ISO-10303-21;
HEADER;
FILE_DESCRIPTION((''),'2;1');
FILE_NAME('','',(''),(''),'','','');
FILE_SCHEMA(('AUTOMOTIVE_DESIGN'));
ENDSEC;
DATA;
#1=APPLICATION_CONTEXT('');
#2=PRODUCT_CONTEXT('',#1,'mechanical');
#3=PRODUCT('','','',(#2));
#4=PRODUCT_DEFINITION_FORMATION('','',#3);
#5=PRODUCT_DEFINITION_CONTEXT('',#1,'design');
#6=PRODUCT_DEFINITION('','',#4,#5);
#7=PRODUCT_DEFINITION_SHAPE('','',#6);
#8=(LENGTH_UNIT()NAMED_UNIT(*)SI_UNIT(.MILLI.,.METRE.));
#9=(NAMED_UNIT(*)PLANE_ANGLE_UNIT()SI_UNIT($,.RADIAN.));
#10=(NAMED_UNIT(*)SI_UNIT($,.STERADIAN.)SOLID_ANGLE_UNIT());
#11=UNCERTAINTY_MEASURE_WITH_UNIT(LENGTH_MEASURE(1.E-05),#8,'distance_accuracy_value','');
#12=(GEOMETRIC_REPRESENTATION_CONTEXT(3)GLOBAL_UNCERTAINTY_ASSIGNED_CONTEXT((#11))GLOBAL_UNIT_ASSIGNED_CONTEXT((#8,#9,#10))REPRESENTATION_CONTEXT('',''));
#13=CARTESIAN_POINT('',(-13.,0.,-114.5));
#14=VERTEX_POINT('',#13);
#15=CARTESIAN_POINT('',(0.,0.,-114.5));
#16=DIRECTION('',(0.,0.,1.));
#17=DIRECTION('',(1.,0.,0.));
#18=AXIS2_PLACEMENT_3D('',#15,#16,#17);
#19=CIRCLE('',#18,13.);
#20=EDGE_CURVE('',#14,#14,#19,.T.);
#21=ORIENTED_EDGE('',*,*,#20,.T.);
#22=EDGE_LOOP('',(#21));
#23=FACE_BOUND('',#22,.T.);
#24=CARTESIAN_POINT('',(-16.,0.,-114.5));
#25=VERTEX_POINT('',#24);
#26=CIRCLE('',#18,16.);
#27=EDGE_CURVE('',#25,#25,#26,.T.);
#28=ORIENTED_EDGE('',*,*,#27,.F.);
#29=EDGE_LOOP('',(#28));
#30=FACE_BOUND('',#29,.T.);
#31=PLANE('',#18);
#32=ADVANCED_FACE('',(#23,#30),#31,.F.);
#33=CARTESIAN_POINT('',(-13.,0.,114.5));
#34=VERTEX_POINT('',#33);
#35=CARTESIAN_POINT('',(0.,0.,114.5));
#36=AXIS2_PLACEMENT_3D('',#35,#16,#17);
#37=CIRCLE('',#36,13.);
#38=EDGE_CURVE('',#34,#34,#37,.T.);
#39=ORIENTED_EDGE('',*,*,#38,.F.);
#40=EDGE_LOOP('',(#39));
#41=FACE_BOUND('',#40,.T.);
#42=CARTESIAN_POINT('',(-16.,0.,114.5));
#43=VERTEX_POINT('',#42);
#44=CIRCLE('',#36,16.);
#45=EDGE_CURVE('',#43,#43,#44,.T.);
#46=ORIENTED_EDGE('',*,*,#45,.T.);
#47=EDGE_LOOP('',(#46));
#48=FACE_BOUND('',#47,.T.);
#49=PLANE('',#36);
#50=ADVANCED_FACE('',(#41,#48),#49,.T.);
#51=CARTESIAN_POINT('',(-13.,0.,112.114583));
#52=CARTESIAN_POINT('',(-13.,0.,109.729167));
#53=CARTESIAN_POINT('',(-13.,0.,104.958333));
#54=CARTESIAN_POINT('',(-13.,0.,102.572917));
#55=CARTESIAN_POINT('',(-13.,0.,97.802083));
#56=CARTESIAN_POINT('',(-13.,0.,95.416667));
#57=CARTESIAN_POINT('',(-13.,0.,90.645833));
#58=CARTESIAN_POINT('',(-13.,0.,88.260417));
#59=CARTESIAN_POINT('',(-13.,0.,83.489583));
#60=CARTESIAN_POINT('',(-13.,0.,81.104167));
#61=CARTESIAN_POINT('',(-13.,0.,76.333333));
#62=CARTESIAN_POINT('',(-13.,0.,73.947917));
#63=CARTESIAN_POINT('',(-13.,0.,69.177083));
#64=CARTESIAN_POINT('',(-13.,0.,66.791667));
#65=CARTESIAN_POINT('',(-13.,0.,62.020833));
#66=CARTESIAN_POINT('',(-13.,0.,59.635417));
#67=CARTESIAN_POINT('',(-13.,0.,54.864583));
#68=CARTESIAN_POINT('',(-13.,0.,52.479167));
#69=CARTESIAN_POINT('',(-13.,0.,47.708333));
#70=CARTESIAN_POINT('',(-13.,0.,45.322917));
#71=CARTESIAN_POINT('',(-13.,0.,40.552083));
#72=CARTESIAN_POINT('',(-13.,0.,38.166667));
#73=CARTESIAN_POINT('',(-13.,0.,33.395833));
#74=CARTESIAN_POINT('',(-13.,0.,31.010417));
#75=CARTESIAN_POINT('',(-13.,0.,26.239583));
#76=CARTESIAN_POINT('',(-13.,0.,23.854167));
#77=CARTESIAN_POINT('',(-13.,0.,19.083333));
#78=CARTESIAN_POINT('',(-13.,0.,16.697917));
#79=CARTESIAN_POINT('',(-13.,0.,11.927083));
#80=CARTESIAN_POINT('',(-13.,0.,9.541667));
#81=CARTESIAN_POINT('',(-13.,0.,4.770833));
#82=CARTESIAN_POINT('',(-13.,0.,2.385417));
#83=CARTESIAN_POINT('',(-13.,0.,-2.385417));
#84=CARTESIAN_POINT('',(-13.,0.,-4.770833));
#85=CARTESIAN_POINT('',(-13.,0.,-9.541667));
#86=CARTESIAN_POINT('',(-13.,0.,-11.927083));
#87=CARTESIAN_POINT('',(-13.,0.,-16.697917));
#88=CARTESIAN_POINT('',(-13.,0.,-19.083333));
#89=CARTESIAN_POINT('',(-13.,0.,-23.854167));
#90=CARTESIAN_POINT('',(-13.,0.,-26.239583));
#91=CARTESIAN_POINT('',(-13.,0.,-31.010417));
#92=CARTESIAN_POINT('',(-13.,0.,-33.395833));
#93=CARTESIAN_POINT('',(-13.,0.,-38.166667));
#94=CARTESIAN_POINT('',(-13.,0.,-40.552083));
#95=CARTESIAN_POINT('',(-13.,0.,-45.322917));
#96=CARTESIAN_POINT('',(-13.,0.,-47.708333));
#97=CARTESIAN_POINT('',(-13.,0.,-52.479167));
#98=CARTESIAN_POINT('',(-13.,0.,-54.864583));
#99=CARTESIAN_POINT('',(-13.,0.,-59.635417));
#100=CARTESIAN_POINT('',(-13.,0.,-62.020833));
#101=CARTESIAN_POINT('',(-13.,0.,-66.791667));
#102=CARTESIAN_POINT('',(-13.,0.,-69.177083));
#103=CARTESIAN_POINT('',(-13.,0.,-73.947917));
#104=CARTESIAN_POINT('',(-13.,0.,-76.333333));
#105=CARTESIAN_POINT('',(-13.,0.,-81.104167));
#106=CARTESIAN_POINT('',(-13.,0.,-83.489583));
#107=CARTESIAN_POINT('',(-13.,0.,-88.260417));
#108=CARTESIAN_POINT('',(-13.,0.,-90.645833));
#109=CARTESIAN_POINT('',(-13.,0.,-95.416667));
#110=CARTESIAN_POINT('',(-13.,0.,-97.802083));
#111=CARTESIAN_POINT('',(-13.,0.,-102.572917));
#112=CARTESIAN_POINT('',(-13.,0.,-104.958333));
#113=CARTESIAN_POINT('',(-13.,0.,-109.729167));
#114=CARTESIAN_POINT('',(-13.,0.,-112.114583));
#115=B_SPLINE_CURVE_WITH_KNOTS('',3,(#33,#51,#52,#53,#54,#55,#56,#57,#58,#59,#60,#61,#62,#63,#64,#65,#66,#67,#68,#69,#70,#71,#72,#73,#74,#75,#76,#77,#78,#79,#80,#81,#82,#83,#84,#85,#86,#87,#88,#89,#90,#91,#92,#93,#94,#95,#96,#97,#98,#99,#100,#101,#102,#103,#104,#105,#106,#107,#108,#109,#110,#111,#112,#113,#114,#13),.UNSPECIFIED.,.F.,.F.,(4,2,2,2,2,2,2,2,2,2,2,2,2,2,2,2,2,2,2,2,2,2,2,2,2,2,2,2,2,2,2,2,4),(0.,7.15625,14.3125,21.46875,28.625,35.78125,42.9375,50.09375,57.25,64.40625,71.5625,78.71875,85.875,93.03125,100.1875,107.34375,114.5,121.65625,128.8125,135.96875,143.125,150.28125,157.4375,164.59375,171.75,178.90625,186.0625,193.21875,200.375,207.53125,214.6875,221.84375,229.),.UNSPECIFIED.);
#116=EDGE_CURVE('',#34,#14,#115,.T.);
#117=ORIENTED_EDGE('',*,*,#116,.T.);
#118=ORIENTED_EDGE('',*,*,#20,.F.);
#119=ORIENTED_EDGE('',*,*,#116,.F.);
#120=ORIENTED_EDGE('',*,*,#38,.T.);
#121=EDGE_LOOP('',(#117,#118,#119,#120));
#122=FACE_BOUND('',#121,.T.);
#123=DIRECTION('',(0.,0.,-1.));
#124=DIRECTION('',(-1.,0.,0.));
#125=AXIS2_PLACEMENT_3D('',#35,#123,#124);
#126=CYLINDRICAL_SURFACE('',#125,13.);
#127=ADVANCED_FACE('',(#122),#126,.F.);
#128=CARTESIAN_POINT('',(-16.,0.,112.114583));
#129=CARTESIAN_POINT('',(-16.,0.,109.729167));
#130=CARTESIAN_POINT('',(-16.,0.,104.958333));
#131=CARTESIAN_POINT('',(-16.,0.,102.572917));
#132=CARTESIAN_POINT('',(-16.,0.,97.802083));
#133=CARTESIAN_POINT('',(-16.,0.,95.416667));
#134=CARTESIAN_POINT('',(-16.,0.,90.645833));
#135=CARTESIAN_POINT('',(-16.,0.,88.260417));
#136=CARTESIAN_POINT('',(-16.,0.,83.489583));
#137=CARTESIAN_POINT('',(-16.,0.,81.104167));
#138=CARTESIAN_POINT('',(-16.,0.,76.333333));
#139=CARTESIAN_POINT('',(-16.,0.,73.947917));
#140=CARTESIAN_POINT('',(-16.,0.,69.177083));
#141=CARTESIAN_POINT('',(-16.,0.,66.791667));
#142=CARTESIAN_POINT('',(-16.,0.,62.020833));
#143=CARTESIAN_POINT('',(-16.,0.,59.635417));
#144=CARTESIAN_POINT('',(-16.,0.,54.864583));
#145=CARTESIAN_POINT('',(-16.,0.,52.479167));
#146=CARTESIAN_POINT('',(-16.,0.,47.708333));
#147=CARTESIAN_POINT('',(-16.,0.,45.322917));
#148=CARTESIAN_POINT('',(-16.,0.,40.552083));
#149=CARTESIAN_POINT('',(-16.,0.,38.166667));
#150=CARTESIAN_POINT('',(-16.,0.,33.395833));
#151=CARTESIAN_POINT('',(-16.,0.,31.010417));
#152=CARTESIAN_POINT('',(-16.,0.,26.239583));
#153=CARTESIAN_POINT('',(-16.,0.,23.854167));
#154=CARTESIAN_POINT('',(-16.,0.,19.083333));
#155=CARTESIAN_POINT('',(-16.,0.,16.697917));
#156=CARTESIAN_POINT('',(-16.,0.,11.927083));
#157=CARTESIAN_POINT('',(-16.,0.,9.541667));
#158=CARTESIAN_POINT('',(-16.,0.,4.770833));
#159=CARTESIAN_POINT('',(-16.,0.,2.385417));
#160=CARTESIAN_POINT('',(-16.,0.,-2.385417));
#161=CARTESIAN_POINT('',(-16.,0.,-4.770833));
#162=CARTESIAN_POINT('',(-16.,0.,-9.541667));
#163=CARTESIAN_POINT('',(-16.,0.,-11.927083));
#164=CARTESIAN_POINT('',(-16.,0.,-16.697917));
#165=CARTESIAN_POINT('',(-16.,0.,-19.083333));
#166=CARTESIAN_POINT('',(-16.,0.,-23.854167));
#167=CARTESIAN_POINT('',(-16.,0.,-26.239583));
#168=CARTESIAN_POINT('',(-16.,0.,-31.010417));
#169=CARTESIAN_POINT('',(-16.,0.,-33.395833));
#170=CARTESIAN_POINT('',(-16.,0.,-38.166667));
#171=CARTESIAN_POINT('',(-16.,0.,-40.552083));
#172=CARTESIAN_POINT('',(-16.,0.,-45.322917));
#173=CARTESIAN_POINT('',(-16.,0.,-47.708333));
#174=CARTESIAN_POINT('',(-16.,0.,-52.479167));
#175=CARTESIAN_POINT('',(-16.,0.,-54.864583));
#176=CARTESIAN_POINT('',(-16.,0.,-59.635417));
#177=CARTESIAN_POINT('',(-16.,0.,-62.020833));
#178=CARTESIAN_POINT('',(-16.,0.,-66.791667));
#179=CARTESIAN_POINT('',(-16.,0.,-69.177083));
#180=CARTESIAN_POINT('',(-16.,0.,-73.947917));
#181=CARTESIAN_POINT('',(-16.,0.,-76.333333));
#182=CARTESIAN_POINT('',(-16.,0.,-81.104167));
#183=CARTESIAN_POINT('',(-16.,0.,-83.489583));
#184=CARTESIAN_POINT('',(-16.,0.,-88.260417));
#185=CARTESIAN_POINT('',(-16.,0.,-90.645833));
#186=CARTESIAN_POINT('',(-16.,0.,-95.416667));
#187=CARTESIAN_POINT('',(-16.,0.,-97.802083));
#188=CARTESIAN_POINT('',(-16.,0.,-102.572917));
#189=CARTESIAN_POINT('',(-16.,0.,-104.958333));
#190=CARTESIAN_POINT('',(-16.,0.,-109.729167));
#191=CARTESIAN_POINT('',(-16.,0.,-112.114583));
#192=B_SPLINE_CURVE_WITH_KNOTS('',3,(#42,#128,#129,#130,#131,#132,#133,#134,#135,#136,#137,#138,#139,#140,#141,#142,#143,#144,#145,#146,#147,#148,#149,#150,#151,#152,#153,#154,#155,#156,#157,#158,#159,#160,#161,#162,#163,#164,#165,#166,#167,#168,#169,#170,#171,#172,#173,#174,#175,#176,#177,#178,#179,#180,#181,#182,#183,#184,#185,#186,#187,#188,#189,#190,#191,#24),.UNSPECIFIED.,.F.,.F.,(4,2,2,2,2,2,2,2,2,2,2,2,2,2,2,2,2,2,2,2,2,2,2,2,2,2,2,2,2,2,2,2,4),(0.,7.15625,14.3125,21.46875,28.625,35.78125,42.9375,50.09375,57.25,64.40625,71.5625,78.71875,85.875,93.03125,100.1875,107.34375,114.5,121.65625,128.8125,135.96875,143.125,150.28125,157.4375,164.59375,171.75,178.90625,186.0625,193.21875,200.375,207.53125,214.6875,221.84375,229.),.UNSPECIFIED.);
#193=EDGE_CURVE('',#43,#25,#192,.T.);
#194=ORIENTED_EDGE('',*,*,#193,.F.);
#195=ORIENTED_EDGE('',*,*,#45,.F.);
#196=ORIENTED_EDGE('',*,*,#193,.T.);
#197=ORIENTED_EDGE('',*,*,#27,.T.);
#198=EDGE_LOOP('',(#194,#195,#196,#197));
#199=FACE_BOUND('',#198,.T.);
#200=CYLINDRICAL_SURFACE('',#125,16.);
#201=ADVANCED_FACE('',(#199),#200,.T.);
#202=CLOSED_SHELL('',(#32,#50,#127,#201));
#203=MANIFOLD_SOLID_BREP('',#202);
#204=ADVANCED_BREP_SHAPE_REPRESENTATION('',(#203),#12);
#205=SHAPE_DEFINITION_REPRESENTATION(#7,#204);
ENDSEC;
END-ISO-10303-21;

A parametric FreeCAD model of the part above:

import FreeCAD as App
import Part
import Sketcher

V = App.Vector


def faces_at(feature, points):
    """Names of the faces that lie closest to the given points."""
    faces = feature.Shape.Faces
    near = lambda p: min(range(len(faces)), key=lambda i: faces[i].distToShape(Part.Vertex(*p))[0])
    return sorted({f"Face{near(p) + 1}" for p in points})

doc = App.newDocument("Part")
body = doc.addObject("PartDesign::Body", "Body")

# Sketch on XY plane
sketch1 = doc.addObject("Sketcher::SketchObject", "Sketch")
body.addObject(sketch1)
sketch1.AttachmentSupport = (doc.XY_Plane, [""])
sketch1.MapMode = "FlatFace"
sketch1.addGeometry(Part.Circle(V(0, 0, 0), V(0, 0, 1), 16), False)
sketch1.addConstraint([
    Sketcher.Constraint("Coincident", 0, 3, -1, 1),
    Sketcher.Constraint("Diameter", 0, 32.0),
])
pad1 = doc.addObject("PartDesign::Pad", "Pad")
body.addObject(pad1)
pad1.Profile = sketch1
pad1.Length = 229
pad1.Midplane = True
doc.recompute()

thickness = doc.addObject("PartDesign::Thickness", "Thickness")
body.addObject(thickness)
thickness.Base = (pad1, faces_at(pad1, [(0, 0, 114.5), (0, 0, -114.5)]))
thickness.Value = 3
thickness.Reversed = True
thickness.Join = "Intersection"

doc.recompute()
